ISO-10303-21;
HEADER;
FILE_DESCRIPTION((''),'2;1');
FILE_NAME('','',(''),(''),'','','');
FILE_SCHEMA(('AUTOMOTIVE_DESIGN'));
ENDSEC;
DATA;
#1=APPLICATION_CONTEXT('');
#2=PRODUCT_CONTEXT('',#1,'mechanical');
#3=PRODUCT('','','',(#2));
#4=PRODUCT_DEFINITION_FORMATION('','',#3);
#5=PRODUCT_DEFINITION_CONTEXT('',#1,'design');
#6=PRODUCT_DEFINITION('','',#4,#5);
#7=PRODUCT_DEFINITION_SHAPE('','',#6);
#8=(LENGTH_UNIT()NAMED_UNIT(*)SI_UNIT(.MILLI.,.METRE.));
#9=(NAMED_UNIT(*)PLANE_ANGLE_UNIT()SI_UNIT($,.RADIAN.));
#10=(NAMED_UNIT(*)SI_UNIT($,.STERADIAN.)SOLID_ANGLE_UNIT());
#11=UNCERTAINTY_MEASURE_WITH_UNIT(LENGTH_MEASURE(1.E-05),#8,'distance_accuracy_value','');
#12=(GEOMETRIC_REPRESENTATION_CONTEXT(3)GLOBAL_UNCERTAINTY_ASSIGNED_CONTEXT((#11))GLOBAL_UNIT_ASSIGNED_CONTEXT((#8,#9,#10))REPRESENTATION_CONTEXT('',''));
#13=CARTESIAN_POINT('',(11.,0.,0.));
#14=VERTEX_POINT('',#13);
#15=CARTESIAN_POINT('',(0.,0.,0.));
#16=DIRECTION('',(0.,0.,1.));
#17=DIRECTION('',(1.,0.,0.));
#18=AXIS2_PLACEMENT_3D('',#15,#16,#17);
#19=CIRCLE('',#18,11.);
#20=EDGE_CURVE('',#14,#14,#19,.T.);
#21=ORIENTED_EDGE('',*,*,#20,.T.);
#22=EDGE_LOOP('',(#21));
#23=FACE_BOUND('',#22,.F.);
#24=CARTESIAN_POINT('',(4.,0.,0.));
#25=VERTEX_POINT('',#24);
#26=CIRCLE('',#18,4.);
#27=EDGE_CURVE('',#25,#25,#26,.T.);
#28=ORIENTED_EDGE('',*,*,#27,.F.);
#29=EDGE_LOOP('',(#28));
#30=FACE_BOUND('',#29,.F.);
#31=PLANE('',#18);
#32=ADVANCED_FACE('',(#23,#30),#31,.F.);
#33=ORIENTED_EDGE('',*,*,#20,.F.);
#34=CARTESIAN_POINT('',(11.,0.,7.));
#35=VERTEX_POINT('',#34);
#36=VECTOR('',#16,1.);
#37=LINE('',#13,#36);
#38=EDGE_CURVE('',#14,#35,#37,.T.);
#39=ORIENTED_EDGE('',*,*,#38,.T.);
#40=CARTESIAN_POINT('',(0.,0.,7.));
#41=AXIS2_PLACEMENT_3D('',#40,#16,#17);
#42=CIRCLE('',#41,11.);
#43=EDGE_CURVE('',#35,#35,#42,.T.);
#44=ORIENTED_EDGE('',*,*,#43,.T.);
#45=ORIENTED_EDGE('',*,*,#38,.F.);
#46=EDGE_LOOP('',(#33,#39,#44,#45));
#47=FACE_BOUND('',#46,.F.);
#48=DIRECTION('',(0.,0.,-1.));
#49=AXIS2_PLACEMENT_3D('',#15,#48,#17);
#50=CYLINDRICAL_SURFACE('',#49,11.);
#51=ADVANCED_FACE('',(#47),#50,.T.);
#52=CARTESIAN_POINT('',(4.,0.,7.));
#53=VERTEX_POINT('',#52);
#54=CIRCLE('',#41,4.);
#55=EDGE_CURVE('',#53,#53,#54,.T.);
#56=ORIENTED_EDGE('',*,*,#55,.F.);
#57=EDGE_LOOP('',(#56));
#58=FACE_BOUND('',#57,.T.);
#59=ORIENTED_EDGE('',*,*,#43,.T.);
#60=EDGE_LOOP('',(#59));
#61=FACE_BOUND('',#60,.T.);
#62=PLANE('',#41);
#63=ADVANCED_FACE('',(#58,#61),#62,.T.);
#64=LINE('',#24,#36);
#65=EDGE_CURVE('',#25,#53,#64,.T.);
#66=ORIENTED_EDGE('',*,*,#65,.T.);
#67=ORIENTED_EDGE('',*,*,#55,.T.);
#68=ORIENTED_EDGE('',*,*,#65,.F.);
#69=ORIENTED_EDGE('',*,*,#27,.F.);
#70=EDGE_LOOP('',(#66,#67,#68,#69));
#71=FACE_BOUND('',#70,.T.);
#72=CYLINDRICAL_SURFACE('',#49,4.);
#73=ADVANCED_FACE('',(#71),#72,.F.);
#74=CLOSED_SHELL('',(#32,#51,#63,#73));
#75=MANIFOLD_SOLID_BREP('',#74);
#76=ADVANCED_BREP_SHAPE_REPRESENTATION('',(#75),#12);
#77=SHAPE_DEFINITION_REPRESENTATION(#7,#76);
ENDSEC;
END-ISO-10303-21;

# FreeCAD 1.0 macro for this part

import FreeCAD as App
import Part
import Sketcher

doc = App.newDocument("Part")
body = doc.addObject("PartDesign::Body", "Body")

# Sketch on XY plane
sketch1 = doc.addObject("Sketcher::SketchObject", "Sketch")
body.addObject(sketch1)
sketch1.AttachmentSupport = (doc.XY_Plane, [""])
sketch1.MapMode = "FlatFace"
sketch1.addGeometry(Part.Circle(App.Vector(0, 0, 0), App.Vector(0, 0, 1), 11), False)
sketch1.addGeometry(Part.Circle(App.Vector(0, 0, 0), App.Vector(0, 0, 1), 4), False)
sketch1.addConstraint(Sketcher.Constraint("Coincident", 0, 3, -1, 1))
sketch1.addConstraint(Sketcher.Constraint("Coincident", 1, 3, -1, 1))
sketch1.addConstraint(Sketcher.Constraint("Diameter", 0, 22.0))
sketch1.addConstraint(Sketcher.Constraint("Diameter", 1, 8.0))
pad1 = doc.addObject("PartDesign::Pad", "Pad")
body.addObject(pad1)
pad1.Profile = sketch1
pad1.Length = 7

doc.recompute()
